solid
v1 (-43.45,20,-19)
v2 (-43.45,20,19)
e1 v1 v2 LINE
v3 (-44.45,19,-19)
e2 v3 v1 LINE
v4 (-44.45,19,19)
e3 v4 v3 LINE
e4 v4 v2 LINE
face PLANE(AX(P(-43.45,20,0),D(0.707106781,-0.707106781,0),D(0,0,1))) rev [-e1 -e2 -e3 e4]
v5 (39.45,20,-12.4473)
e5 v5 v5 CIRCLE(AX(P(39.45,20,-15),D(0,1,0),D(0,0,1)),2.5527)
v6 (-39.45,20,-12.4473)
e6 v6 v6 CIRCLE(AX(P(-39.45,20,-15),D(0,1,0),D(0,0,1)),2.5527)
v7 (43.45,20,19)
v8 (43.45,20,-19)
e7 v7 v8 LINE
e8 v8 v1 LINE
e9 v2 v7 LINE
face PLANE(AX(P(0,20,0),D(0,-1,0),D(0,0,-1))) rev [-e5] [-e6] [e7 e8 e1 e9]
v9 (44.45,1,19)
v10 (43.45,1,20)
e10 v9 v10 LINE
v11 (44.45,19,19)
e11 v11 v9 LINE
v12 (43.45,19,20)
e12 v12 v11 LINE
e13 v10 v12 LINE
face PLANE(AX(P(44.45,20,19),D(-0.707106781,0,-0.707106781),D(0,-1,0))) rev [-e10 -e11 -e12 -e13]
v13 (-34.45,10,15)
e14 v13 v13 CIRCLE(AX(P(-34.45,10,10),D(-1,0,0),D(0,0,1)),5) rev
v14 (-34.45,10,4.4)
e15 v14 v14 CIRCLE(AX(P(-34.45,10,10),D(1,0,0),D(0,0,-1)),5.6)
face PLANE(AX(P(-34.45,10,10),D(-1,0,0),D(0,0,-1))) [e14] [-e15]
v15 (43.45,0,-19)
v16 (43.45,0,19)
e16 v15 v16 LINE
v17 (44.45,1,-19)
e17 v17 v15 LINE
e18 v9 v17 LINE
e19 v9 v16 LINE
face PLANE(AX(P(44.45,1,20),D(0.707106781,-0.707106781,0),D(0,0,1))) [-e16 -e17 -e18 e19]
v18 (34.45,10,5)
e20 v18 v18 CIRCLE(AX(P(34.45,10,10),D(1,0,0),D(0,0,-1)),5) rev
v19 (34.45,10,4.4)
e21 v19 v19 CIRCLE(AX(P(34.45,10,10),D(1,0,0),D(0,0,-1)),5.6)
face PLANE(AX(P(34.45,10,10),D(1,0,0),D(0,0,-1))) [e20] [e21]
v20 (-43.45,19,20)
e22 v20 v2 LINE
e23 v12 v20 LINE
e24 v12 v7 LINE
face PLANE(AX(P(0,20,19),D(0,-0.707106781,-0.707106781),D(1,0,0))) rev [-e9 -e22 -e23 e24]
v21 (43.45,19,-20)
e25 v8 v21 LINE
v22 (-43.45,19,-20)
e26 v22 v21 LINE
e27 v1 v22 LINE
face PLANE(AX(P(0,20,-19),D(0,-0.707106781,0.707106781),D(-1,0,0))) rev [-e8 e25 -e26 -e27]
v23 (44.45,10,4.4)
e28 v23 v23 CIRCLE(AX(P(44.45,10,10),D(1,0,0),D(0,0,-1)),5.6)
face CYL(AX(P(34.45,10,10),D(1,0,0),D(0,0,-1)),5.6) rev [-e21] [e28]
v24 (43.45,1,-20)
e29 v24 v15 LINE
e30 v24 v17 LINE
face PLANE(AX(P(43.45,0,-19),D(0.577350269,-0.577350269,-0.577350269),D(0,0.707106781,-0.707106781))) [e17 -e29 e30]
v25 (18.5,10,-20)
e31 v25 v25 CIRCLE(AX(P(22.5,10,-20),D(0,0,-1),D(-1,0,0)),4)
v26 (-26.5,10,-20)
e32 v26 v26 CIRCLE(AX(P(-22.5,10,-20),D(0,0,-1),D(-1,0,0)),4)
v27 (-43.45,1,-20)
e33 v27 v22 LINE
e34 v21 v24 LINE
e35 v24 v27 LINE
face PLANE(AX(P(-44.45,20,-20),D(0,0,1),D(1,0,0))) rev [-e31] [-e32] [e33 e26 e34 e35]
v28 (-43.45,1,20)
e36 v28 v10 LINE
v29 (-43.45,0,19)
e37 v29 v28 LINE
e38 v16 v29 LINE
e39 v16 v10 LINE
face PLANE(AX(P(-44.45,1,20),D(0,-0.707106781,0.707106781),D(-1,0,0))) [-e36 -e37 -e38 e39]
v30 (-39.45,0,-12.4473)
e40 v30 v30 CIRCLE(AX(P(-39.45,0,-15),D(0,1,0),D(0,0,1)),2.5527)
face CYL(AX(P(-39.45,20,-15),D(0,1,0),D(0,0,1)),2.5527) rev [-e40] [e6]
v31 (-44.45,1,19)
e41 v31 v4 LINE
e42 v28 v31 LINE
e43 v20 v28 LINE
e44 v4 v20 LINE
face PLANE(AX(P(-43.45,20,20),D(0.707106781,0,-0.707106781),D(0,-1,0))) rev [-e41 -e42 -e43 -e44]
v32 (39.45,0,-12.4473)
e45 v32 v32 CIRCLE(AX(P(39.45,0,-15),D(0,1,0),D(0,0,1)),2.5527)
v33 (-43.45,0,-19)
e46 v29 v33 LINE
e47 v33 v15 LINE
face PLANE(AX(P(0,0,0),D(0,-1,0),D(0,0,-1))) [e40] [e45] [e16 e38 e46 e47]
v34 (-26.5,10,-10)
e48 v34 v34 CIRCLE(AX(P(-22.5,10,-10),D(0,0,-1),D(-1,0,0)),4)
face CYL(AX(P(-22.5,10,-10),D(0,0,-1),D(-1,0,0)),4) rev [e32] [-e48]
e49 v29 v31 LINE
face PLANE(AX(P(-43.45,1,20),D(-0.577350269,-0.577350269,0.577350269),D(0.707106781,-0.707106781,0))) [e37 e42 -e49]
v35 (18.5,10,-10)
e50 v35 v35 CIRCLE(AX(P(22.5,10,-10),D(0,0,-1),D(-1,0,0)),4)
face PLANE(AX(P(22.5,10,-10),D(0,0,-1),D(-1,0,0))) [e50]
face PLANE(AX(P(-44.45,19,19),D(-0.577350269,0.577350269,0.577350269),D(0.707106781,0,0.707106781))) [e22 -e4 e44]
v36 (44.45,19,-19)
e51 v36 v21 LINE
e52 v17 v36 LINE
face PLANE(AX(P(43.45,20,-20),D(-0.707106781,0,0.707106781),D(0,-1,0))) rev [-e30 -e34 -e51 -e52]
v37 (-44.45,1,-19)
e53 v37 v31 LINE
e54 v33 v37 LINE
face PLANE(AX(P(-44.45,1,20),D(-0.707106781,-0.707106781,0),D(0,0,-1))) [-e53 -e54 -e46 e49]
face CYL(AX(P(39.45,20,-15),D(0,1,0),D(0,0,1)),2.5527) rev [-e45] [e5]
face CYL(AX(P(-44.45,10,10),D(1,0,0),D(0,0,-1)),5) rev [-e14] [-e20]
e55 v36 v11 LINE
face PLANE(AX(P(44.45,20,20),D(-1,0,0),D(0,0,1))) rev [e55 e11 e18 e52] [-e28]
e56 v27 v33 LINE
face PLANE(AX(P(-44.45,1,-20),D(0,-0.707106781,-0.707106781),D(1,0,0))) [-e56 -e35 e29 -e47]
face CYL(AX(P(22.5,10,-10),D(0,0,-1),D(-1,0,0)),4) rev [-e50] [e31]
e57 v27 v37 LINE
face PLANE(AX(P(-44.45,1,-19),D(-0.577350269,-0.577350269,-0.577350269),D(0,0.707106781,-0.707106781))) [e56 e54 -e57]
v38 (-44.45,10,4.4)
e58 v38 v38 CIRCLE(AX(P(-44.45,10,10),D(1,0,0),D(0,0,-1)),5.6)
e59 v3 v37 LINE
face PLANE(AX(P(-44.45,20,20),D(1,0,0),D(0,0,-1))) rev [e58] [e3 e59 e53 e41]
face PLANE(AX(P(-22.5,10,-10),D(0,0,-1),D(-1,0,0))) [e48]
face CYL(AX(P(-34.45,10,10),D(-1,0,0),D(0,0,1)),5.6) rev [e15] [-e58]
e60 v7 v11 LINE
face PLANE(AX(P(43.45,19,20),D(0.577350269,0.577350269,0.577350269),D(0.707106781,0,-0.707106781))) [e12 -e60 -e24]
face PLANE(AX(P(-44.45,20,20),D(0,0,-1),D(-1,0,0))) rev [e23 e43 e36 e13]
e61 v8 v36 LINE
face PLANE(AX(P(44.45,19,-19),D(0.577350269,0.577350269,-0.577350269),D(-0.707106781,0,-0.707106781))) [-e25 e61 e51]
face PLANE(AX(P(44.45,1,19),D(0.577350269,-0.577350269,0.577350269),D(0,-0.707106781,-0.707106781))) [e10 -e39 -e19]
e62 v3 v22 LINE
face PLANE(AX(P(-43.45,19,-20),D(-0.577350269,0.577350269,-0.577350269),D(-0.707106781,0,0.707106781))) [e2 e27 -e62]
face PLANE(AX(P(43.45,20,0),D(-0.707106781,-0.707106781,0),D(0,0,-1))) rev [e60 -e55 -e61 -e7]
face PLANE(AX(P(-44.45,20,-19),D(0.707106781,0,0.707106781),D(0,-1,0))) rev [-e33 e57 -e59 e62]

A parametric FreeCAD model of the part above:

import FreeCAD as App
import Part
import Sketcher

V = App.Vector


def edges_at(feature, points):
    """Names of the edges that pass closest to the given points."""
    edges = feature.Shape.Edges
    near = lambda p: min(range(len(edges)), key=lambda i: edges[i].distToShape(Part.Vertex(*p))[0])
    return sorted({f"Edge{near(p) + 1}" for p in points})

doc = App.newDocument("Part")
body = doc.addObject("PartDesign::Body", "Body")

# Sketch on XZ plane
sketch1 = body.newObject("Sketcher::SketchObject", "Sketch")
sketch1.AttachmentSupport = (doc.getObject("XZ_Plane"), [""])
sketch1.MapMode = "FlatFace"
sketch1.addGeometry(Part.LineSegment(V(-44.45, -20, 0), V(-44.45, 20, 0)), False)
sketch1.addGeometry(Part.LineSegment(V(-44.45, 20, 0), V(44.45, 20, 0)), False)
sketch1.addGeometry(Part.LineSegment(V(44.45, 20, 0), V(44.45, -20, 0)), False)
sketch1.addGeometry(Part.LineSegment(V(44.45, -20, 0), V(-44.45, -20, 0)), False)
sketch1.addConstraint(Sketcher.Constraint("Coincident", 0, 2, 1, 1))
sketch1.addConstraint(Sketcher.Constraint("Coincident", 1, 2, 2, 1))
sketch1.addConstraint(Sketcher.Constraint("Coincident", 2, 2, 3, 1))
sketch1.addConstraint(Sketcher.Constraint("Coincident", 3, 2, 0, 1))
sketch1.addConstraint(Sketcher.Constraint("Vertical", 0))
sketch1.addConstraint(Sketcher.Constraint("Horizontal", 1))
sketch1.addConstraint(Sketcher.Constraint("Vertical", 2))
sketch1.addConstraint(Sketcher.Constraint("Horizontal", 3))
sketch1.addConstraint(Sketcher.Constraint("Symmetric", 0, 2, 2, 2, -1, 1))
sketch1.addConstraint(Sketcher.Constraint("DistanceY", 0, 1, 0, 2, 40.0))
sketch1.addConstraint(Sketcher.Constraint("DistanceX", 1, 1, 1, 2, 88.9))
pad1 = body.newObject("PartDesign::Pad", "Pad")
pad1.Profile = sketch1
pad1.Length = 20
pad1.Reversed = True

# Sketch on YZ plane
sketch2 = body.newObject("Sketcher::SketchObject", "Sketch001")
sketch2.AttachmentSupport = (doc.getObject("YZ_Plane"), [""])
sketch2.MapMode = "FlatFace"
sketch2.AttachmentOffset = App.Placement(V(0, 0, 44.45), App.Rotation())
sketch2.addGeometry(Part.Circle(V(10, 10, 0), V(0, 0, 1), 5), False)
sketch2.addConstraint(Sketcher.Constraint("Diameter", 0, 10.0))
sketch2.addConstraint(Sketcher.Constraint("DistanceX", -1, 1, 0, 3, 10.0))
sketch2.addConstraint(Sketcher.Constraint("DistanceY", -1, 1, 0, 3, 10.0))
pocket1 = body.newObject("PartDesign::Pocket", "Pocket")
pocket1.Profile = sketch2
pocket1.Type = "ThroughAll"

# Sketch on YZ plane
sketch3 = body.newObject("Sketcher::SketchObject", "Sketch002")
sketch3.AttachmentSupport = (doc.getObject("YZ_Plane"), [""])
sketch3.MapMode = "FlatFace"
sketch3.AttachmentOffset = App.Placement(V(0, 0, 44.45), App.Rotation())
sketch3.addGeometry(Part.Circle(V(10, 10, 0), V(0, 0, 1), 5.6), False)
sketch3.addConstraint(Sketcher.Constraint("Diameter", 0, 11.2))
sketch3.addConstraint(Sketcher.Constraint("DistanceX", -1, 1, 0, 3, 10.0))
sketch3.addConstraint(Sketcher.Constraint("DistanceY", -1, 1, 0, 3, 10.0))
pocket2 = body.newObject("PartDesign::Pocket", "Pocket001")
pocket2.Profile = sketch3
pocket2.Length = 10
doc.recompute()

mirrored = body.newObject("PartDesign::Mirrored", "Mirrored")
mirrored.Originals = [pocket2]
mirrored.MirrorPlane = (doc.getObject("YZ_Plane"), [""])
body.Tip = mirrored

# Sketch on XY plane
sketch4 = body.newObject("Sketcher::SketchObject", "Sketch003")
sketch4.AttachmentSupport = (doc.getObject("XY_Plane"), [""])
sketch4.MapMode = "FlatFace"
sketch4.AttachmentOffset = App.Placement(V(0, 0, -20), App.Rotation())
sketch4.addGeometry(Part.Circle(V(22.5, 10, 0), V(0, 0, 1), 4), False)
sketch4.addGeometry(Part.Circle(V(-22.5, 10, 0), V(0, 0, 1), 4), False)
sketch4.addConstraint(Sketcher.Constraint("Equal", 0, 1))
sketch4.addConstraint(Sketcher.Constraint("Symmetric", 0, 3, 1, 3, -2))
sketch4.addConstraint(Sketcher.Constraint("Diameter", 0, 8.0))
sketch4.addConstraint(Sketcher.Constraint("DistanceY", -1, 1, 0, 3, 10.0))
sketch4.addConstraint(Sketcher.Constraint("DistanceX", 1, 3, 0, 3, 45.0))
pocket3 = body.newObject("PartDesign::Pocket", "Pocket002")
pocket3.Profile = sketch4
pocket3.Length = 10
pocket3.Reversed = True

# Sketch on XZ plane
sketch5 = body.newObject("Sketcher::SketchObject", "Sketch004")
sketch5.AttachmentSupport = (doc.getObject("XZ_Plane"), [""])
sketch5.MapMode = "FlatFace"
sketch5.AttachmentOffset = App.Placement(V(0, 0, -20), App.Rotation())
sketch5.addGeometry(Part.Circle(V(39.45, -15, 0), V(0, 0, 1), 2.5527), False)
sketch5.addGeometry(Part.Circle(V(-39.45, -15, 0), V(0, 0, 1), 2.5527), False)
sketch5.addConstraint(Sketcher.Constraint("Equal", 0, 1))
sketch5.addConstraint(Sketcher.Constraint("Symmetric", 0, 3, 1, 3, -2))
sketch5.addConstraint(Sketcher.Constraint("DistanceY", 0, 3, -1, 1, 15.0))
sketch5.addConstraint(Sketcher.Constraint("Diameter", 0, 5.1054))
sketch5.addConstraint(Sketcher.Constraint("DistanceX", 1, 3, 0, 3, 78.9))
doc.recompute()
hole = body.newObject("PartDesign::Hole", "Hole")
hole.Profile = sketch5
hole.ThreadType = "None"
hole.Diameter = 5.1054
hole.DepthType = "ThroughAll"
hole.Reversed = True
doc.recompute()

chamfer = body.newObject("PartDesign::Chamfer", "Chamfer")
chamfer.Base = (hole, edges_at(hole, [
    (-44.45, 20, 0),
    (0, 20, 20),
    (44.45, 20, 0),
    (0, 0, 20),
    (-44.45, 0, 0),
    (0, 0, -20),
    (44.45, 0, 0),
    (0, 20, -20),
    (44.45, 10, 20),
    (-44.45, 10, 20),
    (-44.45, 10, -20),
    (44.45, 10, -20),
]))
chamfer.Size = 1

doc.recompute()
